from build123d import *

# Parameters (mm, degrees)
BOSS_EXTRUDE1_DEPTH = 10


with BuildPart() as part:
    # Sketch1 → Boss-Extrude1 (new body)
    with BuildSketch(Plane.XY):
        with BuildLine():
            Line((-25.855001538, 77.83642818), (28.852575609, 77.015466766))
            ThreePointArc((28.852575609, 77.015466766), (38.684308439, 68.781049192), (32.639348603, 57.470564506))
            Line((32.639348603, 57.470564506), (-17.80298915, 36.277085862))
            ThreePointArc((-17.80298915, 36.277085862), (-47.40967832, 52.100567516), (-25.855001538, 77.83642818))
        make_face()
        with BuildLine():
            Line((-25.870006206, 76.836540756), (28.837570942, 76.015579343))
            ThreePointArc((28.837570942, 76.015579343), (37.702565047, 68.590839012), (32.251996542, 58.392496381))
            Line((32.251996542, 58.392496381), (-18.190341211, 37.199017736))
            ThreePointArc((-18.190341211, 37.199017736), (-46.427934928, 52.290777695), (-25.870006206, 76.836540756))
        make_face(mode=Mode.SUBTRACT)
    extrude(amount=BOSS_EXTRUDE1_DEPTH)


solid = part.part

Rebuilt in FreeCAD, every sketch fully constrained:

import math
import FreeCAD as App
import Part
import Sketcher

V = App.Vector
Q = App.Units.Quantity

doc = App.newDocument("Part")
params = doc.addObject("Spreadsheet::Sheet", "Params")
for row, (alias, value) in enumerate([
    ("sketch1_radius", "10.17 mm"),
    ("sketch1_radius2", "9.17 mm"),
    ("pad1_length", "10 mm"),
], start=1):
    params.set(f"A{row}", alias)
    params.set(f"B{row}", "=" + value)
    params.setAlias(f"B{row}", alias)

body = doc.addObject("PartDesign::Body", "Body")

# Sketch on XY plane
sketch1 = doc.addObject("Sketcher::SketchObject", "Sketch")
body.addObject(sketch1)
sketch1.AttachmentSupport = (doc.XY_Plane, [""])
sketch1.MapMode = "FlatFace"
sketch1.addGeometry([
    Part.LineSegment(V(28.852576, 77.015467, 0), V(-25.855002, 77.836428, 0)),  # 0
    Part.ArcOfCircle(Part.Circle(V(-26.179477, 56.213863, 0), V(0, 0, 1), 21.625), math.radians(89.140264), math.radians(292.789837)),  # 1
    Part.LineSegment(V(-17.802989, 36.277086, 0), V(32.639349, 57.470565, 0)),  # 2
    Part.ArcOfCircle(Part.Circle(V(28.699978, 66.846612, 0), V(0, 0, 1), 10.17), math.radians(-67.210163), math.radians(89.140264)),  # 3
    Part.LineSegment(V(-25.870006, 76.836541, 0), V(28.837571, 76.015579, 0)),  # 4
    Part.ArcOfCircle(Part.Circle(V(28.699978, 66.846612, 0), V(0, 0, 1), 9.17), math.radians(-67.210163), math.radians(89.140264)),  # 5
    Part.LineSegment(V(32.251997, 58.392496, 0), V(-18.190341, 37.199018, 0)),  # 6
    Part.ArcOfCircle(Part.Circle(V(-26.179477, 56.213863, 0), V(0, 0, 1), 20.625), math.radians(89.140264), math.radians(292.789837)),  # 7
], False)
sketch1.addConstraint([
    Sketcher.Constraint("Tangent", 0, 2, 1, 1),
    Sketcher.Constraint("Tangent", 1, 2, 2, 1),
    Sketcher.Constraint("Tangent", 2, 2, 3, 1),
    Sketcher.Constraint("Tangent", 3, 2, 0, 1),
    Sketcher.Constraint("Tangent", 4, 2, 5, 2),
    Sketcher.Constraint("Tangent", 5, 1, 6, 1),
    Sketcher.Constraint("Tangent", 6, 2, 7, 2),
    Sketcher.Constraint("Tangent", 7, 1, 4, 1),
    Sketcher.Constraint("Coincident", 5, 3, 3, 3),
    Sketcher.Constraint("Coincident", 7, 3, 1, 3),
    Sketcher.Constraint("Parallel", 0, 4),
    Sketcher.Constraint("Radius", 3, Q("10.17 mm")),
    Sketcher.Constraint("Radius", 5, Q("9.17 mm")),
    Sketcher.Constraint("Radius", 1, Q("21.625 mm")),
    Sketcher.Constraint("DistanceX", 0, 2, -1, 1, Q("25.855002 mm")),
    Sketcher.Constraint("DistanceY", 1, 3, 2, 2, Q("1.256702 mm")),
    Sketcher.Constraint("DistanceX", -1, 1, 3, 3, Q("28.699978 mm")),
    Sketcher.Constraint("DistanceY", -1, 1, 3, 3, Q("66.846612 mm")),
])
sketch1.setExpression("Constraints[11]", "Params.sketch1_radius")
sketch1.setExpression("Constraints[12]", "Params.sketch1_radius2")
pad1 = doc.addObject("PartDesign::Pad", "Pad")
body.addObject(pad1)
pad1.Profile = sketch1
pad1.setExpression("Length", "Params.pad1_length")

doc.recompute()
